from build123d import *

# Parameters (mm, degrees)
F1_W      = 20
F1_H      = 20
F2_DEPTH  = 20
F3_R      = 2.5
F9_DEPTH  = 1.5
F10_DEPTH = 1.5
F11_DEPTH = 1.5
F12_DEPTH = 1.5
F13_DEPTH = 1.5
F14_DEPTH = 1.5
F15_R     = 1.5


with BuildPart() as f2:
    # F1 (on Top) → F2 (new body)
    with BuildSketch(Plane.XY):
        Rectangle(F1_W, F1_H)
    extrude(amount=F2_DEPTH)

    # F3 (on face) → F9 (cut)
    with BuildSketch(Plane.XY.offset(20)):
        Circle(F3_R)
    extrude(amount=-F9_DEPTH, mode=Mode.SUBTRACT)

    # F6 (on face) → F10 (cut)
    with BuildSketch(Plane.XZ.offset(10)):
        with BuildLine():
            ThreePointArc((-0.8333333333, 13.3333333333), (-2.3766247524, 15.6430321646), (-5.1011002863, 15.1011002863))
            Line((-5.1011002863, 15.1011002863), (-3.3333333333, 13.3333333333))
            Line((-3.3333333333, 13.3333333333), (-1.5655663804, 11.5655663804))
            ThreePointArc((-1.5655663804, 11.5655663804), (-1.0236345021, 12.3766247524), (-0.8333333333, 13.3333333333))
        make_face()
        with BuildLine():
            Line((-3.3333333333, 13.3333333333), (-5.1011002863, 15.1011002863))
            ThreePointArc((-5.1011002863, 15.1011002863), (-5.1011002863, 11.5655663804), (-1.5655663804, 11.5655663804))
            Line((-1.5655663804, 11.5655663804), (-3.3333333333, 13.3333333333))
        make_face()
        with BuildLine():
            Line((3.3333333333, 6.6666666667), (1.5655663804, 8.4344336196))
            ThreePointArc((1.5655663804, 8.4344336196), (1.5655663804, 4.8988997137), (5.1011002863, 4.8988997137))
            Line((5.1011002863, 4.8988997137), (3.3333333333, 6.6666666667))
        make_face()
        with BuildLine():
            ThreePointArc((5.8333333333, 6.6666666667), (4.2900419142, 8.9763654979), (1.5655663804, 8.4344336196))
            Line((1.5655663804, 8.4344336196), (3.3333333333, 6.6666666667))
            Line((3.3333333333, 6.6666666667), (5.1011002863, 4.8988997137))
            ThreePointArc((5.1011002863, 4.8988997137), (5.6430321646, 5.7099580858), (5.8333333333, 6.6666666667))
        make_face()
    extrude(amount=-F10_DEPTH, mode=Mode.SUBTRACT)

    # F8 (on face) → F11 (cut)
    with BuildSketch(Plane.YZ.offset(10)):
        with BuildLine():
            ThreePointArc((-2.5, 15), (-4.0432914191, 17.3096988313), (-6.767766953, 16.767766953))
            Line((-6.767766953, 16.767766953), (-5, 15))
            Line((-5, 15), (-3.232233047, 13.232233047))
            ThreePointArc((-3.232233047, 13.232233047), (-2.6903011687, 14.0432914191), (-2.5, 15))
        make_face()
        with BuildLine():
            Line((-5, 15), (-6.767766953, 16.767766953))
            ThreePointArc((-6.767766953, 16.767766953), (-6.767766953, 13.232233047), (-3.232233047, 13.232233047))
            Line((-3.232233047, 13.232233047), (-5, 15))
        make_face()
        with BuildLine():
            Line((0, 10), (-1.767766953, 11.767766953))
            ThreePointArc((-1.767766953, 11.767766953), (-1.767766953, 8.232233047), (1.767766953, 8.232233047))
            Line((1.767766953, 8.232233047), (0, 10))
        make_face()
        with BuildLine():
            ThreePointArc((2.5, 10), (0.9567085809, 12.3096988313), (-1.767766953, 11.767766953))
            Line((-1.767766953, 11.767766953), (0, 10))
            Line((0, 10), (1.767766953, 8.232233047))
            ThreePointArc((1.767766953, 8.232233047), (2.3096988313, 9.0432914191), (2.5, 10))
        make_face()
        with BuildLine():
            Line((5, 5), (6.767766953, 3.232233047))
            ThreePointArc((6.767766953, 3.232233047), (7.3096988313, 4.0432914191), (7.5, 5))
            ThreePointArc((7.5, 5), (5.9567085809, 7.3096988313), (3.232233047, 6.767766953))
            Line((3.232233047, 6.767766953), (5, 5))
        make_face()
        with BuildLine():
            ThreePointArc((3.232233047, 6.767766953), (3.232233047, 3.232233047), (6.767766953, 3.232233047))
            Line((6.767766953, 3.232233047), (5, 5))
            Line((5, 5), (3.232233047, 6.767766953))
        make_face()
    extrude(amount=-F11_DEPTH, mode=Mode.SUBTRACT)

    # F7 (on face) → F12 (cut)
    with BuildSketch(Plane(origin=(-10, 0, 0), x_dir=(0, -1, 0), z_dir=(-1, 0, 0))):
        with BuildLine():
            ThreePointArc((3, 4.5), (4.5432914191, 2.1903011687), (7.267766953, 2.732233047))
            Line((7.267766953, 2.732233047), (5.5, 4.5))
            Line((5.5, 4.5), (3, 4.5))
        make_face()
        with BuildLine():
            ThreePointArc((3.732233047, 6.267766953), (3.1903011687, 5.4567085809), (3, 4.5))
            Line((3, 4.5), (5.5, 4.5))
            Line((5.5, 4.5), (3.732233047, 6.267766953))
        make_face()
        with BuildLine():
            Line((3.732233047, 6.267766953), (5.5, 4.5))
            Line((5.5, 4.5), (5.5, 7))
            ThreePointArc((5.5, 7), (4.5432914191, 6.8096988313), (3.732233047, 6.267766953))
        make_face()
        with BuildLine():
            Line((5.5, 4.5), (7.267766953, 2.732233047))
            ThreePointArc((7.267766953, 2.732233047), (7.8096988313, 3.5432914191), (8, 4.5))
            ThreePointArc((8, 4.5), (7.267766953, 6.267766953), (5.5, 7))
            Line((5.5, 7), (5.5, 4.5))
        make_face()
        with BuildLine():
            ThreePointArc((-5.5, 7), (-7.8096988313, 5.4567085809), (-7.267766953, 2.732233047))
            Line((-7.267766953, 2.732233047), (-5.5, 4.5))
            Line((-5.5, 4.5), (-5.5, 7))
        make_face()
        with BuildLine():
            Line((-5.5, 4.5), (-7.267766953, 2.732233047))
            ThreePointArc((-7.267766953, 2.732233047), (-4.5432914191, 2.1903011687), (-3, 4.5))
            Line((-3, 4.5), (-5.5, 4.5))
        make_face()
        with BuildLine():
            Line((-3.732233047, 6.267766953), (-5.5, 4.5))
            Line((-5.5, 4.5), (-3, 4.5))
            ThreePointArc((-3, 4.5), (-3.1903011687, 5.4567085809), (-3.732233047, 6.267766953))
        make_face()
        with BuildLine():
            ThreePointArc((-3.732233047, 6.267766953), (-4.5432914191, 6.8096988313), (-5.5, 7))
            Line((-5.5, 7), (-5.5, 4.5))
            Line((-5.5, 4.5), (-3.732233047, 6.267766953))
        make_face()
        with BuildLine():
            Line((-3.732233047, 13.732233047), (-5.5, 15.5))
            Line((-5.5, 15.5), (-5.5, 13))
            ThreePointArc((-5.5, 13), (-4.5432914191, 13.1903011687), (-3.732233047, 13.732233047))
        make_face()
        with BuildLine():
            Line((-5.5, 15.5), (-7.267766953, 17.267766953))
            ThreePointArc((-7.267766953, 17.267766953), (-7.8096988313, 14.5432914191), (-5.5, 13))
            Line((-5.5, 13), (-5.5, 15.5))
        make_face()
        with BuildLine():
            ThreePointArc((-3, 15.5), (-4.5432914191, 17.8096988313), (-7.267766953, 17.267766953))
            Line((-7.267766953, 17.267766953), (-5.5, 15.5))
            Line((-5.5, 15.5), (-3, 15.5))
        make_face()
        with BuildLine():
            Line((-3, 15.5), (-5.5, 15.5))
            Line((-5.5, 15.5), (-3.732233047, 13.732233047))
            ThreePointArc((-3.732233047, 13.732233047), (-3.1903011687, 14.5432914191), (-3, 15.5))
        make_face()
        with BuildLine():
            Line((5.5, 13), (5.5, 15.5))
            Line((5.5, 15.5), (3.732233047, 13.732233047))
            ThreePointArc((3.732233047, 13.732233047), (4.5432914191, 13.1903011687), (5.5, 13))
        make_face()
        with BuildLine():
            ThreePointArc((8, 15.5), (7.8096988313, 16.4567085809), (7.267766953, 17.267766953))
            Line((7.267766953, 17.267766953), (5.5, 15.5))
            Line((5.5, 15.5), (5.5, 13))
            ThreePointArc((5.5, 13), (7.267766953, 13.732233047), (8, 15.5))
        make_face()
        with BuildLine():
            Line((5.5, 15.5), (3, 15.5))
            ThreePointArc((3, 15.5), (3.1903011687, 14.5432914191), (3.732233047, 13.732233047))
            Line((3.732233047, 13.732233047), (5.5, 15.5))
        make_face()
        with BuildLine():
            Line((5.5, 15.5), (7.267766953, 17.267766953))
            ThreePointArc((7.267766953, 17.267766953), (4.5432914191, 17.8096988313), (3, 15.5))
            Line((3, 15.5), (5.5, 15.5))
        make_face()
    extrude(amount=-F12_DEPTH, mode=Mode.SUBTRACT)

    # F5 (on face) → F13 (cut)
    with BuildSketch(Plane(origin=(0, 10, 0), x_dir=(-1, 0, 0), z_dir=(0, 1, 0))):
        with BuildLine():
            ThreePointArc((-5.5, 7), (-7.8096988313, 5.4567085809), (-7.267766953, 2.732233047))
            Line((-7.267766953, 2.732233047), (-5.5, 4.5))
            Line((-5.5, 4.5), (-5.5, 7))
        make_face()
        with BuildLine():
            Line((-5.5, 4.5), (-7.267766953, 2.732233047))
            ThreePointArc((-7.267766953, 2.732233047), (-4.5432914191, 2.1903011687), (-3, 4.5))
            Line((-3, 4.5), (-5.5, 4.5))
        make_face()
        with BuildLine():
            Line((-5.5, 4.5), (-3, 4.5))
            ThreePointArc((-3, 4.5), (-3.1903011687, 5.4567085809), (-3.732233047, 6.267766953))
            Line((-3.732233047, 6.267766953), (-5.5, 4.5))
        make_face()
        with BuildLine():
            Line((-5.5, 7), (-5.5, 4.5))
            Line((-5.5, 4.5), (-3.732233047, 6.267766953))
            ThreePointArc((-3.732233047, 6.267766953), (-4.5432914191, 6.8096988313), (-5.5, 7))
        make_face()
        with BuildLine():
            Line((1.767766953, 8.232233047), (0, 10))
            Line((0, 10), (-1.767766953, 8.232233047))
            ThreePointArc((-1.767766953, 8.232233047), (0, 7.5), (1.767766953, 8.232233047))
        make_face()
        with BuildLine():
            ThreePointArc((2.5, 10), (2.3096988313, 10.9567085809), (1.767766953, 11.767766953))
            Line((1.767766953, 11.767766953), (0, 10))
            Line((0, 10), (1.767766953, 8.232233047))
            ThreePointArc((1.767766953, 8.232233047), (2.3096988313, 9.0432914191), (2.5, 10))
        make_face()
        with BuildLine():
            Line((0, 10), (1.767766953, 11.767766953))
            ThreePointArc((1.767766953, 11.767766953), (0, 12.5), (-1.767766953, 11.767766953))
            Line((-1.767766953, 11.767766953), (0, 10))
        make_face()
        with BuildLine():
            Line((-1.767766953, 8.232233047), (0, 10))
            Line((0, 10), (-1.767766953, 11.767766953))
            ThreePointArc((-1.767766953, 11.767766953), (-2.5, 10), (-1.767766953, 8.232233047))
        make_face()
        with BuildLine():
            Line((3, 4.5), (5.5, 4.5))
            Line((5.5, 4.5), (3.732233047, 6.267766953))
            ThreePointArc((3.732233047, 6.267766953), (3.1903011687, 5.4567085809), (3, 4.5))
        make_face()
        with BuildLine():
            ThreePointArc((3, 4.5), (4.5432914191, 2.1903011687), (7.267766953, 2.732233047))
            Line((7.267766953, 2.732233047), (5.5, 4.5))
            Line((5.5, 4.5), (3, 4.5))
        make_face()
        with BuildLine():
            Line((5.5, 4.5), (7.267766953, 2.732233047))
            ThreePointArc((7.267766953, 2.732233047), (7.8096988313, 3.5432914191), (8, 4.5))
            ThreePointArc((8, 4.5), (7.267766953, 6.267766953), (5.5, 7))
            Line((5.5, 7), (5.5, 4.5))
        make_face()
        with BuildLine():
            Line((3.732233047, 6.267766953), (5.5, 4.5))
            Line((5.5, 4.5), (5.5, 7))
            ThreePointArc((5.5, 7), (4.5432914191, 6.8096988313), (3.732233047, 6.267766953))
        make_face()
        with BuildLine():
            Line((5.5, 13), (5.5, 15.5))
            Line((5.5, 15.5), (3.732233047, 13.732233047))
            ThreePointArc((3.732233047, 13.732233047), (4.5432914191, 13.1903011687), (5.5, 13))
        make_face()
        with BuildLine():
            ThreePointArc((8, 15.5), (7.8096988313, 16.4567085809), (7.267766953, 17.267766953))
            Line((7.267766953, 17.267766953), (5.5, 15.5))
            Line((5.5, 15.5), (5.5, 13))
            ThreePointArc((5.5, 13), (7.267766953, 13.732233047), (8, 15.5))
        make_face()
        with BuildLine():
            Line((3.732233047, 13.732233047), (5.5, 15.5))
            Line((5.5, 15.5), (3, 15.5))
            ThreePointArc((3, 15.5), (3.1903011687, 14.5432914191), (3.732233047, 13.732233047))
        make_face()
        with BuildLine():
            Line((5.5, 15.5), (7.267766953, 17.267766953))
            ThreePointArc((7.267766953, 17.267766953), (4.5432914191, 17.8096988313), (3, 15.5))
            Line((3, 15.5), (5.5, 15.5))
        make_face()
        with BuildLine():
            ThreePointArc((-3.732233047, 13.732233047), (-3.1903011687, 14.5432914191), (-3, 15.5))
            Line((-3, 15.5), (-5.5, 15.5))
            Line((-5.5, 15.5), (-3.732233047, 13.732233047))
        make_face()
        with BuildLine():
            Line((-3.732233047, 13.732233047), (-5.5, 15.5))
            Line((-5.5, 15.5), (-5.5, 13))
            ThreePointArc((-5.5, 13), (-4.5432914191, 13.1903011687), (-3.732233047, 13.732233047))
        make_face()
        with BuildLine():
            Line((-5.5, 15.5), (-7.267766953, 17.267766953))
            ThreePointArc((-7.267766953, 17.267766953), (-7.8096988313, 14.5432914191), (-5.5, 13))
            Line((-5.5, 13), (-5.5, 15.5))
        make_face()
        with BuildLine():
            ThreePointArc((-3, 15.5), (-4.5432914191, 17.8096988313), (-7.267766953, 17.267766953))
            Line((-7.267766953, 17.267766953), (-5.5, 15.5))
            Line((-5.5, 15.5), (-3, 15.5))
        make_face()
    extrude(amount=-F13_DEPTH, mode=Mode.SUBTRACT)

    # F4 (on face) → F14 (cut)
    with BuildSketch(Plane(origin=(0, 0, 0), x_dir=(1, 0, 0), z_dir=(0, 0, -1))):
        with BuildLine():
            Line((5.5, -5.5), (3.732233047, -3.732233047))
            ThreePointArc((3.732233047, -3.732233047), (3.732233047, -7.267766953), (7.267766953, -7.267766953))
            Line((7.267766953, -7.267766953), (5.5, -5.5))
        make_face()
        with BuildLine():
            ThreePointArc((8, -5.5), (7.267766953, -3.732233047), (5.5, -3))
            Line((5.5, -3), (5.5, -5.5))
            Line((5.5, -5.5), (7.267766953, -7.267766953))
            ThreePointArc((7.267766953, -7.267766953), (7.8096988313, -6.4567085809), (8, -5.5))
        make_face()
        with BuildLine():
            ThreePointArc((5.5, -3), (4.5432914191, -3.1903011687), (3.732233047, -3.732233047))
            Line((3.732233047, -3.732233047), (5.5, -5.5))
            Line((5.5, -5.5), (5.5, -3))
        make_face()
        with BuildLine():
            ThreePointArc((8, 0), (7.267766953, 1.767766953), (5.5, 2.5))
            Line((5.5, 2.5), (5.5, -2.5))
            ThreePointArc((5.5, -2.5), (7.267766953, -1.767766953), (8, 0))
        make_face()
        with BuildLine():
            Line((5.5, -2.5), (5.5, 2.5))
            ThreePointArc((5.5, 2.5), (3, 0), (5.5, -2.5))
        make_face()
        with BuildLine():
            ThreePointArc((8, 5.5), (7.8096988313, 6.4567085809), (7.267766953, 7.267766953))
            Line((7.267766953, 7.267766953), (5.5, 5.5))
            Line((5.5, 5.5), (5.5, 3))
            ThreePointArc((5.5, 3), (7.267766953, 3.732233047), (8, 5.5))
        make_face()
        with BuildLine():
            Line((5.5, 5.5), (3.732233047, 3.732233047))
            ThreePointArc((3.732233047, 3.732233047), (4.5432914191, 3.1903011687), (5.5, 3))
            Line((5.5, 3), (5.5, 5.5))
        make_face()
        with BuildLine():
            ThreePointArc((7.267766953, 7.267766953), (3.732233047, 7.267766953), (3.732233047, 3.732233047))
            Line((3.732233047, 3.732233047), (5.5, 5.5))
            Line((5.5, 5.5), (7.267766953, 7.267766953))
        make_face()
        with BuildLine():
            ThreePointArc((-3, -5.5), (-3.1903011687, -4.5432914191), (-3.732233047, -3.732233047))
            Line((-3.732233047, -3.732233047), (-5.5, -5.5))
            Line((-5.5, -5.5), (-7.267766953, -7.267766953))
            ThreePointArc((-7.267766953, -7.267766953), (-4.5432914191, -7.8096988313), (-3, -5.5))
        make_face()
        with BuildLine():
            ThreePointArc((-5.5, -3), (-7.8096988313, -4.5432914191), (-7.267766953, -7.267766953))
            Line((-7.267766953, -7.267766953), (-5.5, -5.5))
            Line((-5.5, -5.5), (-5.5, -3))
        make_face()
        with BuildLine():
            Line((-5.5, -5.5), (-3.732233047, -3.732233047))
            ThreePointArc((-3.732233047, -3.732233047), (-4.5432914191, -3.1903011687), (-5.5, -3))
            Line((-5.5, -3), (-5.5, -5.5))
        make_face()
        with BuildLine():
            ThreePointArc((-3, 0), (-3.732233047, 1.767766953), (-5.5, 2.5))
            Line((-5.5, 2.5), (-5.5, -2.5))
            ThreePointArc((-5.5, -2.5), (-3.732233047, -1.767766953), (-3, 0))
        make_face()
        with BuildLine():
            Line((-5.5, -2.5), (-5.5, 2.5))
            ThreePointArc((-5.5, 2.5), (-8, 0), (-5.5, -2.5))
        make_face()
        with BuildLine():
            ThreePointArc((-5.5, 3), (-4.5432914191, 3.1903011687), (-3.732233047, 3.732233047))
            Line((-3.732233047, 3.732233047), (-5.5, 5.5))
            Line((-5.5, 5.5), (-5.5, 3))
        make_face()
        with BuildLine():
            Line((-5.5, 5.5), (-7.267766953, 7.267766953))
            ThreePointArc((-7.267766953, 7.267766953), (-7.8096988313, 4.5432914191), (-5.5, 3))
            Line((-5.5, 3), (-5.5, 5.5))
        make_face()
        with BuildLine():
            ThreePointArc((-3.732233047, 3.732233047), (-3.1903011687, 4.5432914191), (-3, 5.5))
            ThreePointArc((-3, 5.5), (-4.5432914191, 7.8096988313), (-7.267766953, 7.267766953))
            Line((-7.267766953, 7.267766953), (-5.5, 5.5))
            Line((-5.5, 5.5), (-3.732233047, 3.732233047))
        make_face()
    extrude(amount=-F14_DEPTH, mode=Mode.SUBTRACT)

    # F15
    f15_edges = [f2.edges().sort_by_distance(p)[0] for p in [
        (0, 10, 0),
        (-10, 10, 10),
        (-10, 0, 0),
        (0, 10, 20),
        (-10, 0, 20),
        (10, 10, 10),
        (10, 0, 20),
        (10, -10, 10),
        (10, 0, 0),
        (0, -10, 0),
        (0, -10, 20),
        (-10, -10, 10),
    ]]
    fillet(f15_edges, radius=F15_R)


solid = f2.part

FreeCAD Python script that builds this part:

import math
import FreeCAD as App
import Part
import Sketcher
Q = App.Units.Quantity


def edges_at(feature, points):
    """Names of the edges that pass closest to the given points."""
    edges = feature.Shape.Edges
    near = lambda p: min(range(len(edges)), key=lambda i: edges[i].distToShape(Part.Vertex(*p))[0])
    return sorted({f"Edge{near(p) + 1}" for p in points})


def add_polygon(sketch, points):
    """Adds a closed chain of lines whose ends are joined by coincident constraints."""
    first, n = sketch.GeometryCount, len(points)
    for a, b in zip(points, points[1:] + points[:1]):
        sketch.addGeometry(Part.LineSegment(App.Vector(*a, 0), App.Vector(*b, 0)), False)
    for i in range(n):
        sketch.addConstraint(Sketcher.Constraint("Coincident", first + i, 2, first + (i + 1) % n, 1))

doc = App.newDocument("Part")
body = doc.addObject("PartDesign::Body", "Body")

sketch1 = body.newObject("Sketcher::SketchObject", "Sketch")
sketch1.AttachmentSupport = (doc.getObject("XY_Plane"), [""])
sketch1.MapMode = "FlatFace"
add_polygon(sketch1, [(-10, 10), (-10, -10), (10, -10), (10, 10)])
sketch1.addConstraint([
    Sketcher.Constraint("Vertical", 0),
    Sketcher.Constraint("Horizontal", 1),
    Sketcher.Constraint("Vertical", 2),
    Sketcher.Constraint("Horizontal", 3),
    Sketcher.Constraint("Symmetric", 0, 2, 2, 2, -1, 1),
    Sketcher.Constraint("Equal", 3, 0),
    Sketcher.Constraint("DistanceX", 1, 1, 1, 2, Q("20 mm")),
])
pad1 = body.newObject("PartDesign::Pad", "Pad")
pad1.Profile = sketch1
pad1.Length = 20

sketch2 = body.newObject("Sketcher::SketchObject", "Sketch001")
sketch2.AttachmentSupport = (doc.getObject("XY_Plane"), [""])
sketch2.MapMode = "FlatFace"
sketch2.AttachmentOffset = App.Placement(App.Vector(0, 0, 20), App.Rotation())
sketch2.addGeometry(Part.Circle(App.Vector(0, 0, 0), App.Vector(0, 0, 1), 2.5), False)
sketch2.addConstraint([
    Sketcher.Constraint("Coincident", 0, 3, -1, 1),
    Sketcher.Constraint("Diameter", 0, Q("5 mm")),
])
pocket1 = body.newObject("PartDesign::Pocket", "Pocket")
pocket1.Profile = sketch2
pocket1.Length = 1.5

sketch3 = body.newObject("Sketcher::SketchObject", "Sketch002")
sketch3.AttachmentSupport = (doc.getObject("XZ_Plane"), [""])
sketch3.MapMode = "FlatFace"
sketch3.AttachmentOffset = App.Placement(App.Vector(0, 0, 10), App.Rotation())
sketch3.addGeometry([
    Part.ArcOfCircle(Part.Circle(App.Vector(-3.333333, 13.333333, 0), App.Vector(0, 0, 1), 2.5), math.radians(0), math.radians(135)),
    Part.ArcOfCircle(Part.Circle(App.Vector(-3.333333, 13.333333, 0), App.Vector(0, 0, 1), 2.5), math.radians(135), math.radians(315)),
    Part.ArcOfCircle(Part.Circle(App.Vector(-3.333333, 13.333333, 0), App.Vector(0, 0, 1), 2.5), math.radians(-45), math.radians(0)),
    Part.ArcOfCircle(Part.Circle(App.Vector(3.333333, 6.666667, 0), App.Vector(0, 0, 1), 2.5), math.radians(135), math.radians(315)),
    Part.ArcOfCircle(Part.Circle(App.Vector(3.333333, 6.666667, 0), App.Vector(0, 0, 1), 2.5), math.radians(-45), math.radians(0)),
    Part.ArcOfCircle(Part.Circle(App.Vector(3.333333, 6.666667, 0), App.Vector(0, 0, 1), 2.5), math.radians(0), math.radians(135)),
], False)
sketch3.addConstraint([
    Sketcher.Constraint("Tangent", 0, 2, 1, 1),
    Sketcher.Constraint("Tangent", 1, 2, 2, 1),
    Sketcher.Constraint("Tangent", 2, 2, 0, 1),
    Sketcher.Constraint("Tangent", 3, 2, 4, 1),
    Sketcher.Constraint("Tangent", 4, 2, 5, 1),
    Sketcher.Constraint("Tangent", 5, 2, 3, 1),
    Sketcher.Constraint("Equal", 2, 3),
    Sketcher.Constraint("Horizontal", 1, 3, 2, 2),
    Sketcher.Constraint("Horizontal", 5, 3, 4, 2),
    Sketcher.Constraint("Radius", 0, Q("2.5 mm")),
    Sketcher.Constraint("DistanceX", 0, 2, -1, 1, Q("5.1011 mm")),
    Sketcher.Constraint("DistanceY", -1, 1, 0, 2, Q("15.1011 mm")),
    Sketcher.Constraint("DistanceX", -1, 1, 3, 2, Q("5.1011 mm")),
    Sketcher.Constraint("DistanceY", -1, 1, 3, 2, Q("4.8989 mm")),
    Sketcher.Constraint("DistanceX", 1, 2, 3, 3, Q("4.8989 mm")),
    Sketcher.Constraint("DistanceX", 0, 3, -1, 1, Q("3.333333 mm")),
    Sketcher.Constraint("DistanceX", -1, 1, 3, 3, Q("3.333333 mm")),
    Sketcher.Constraint("DistanceX", -1, 1, 5, 2, Q("1.565566 mm")),
])
pocket2 = body.newObject("PartDesign::Pocket", "Pocket001")
pocket2.Profile = sketch3
pocket2.Length = 1.5

sketch4 = body.newObject("Sketcher::SketchObject", "Sketch003")
sketch4.AttachmentSupport = (doc.getObject("YZ_Plane"), [""])
sketch4.MapMode = "FlatFace"
sketch4.AttachmentOffset = App.Placement(App.Vector(0, 0, 10), App.Rotation())
sketch4.addGeometry([
    Part.ArcOfCircle(Part.Circle(App.Vector(-5, 15, 0), App.Vector(0, 0, 1), 2.5), math.radians(0), math.radians(135)),
    Part.ArcOfCircle(Part.Circle(App.Vector(-5, 15, 0), App.Vector(0, 0, 1), 2.5), math.radians(135), math.radians(315)),
    Part.ArcOfCircle(Part.Circle(App.Vector(-5, 15, 0), App.Vector(0, 0, 1), 2.5), math.radians(-45), math.radians(0)),
    Part.ArcOfCircle(Part.Circle(App.Vector(0, 10, 0), App.Vector(0, 0, 1), 2.5), math.radians(135), math.radians(315)),
    Part.ArcOfCircle(Part.Circle(App.Vector(0, 10, 0), App.Vector(0, 0, 1), 2.5), math.radians(-45), math.radians(0)),
    Part.ArcOfCircle(Part.Circle(App.Vector(0, 10, 0), App.Vector(0, 0, 1), 2.5), math.radians(0), math.radians(135)),
    Part.ArcOfCircle(Part.Circle(App.Vector(5, 5, 0), App.Vector(0, 0, 1), 2.5), math.radians(-45), math.radians(0)),
    Part.ArcOfCircle(Part.Circle(App.Vector(5, 5, 0), App.Vector(0, 0, 1), 2.5), math.radians(0), math.radians(135)),
    Part.ArcOfCircle(Part.Circle(App.Vector(5, 5, 0), App.Vector(0, 0, 1), 2.5), math.radians(135), math.radians(315)),
], False)
sketch4.addConstraint([
    Sketcher.Constraint("Tangent", 0, 2, 1, 1),
    Sketcher.Constraint("Tangent", 1, 2, 2, 1),
    Sketcher.Constraint("Tangent", 2, 2, 0, 1),
    Sketcher.Constraint("Tangent", 3, 2, 4, 1),
    Sketcher.Constraint("Tangent", 4, 2, 5, 1),
    Sketcher.Constraint("Tangent", 5, 2, 3, 1),
    Sketcher.Constraint("Tangent", 6, 2, 7, 1),
    Sketcher.Constraint("Tangent", 7, 2, 8, 1),
    Sketcher.Constraint("Tangent", 8, 2, 6, 1),
    Sketcher.Constraint("Equal", 2, 3),
    Sketcher.Constraint("Equal", 5, 6),
    Sketcher.Constraint("PointOnObject", 3, 3, -2),
    Sketcher.Constraint("Horizontal", 1, 3, 2, 2),
    Sketcher.Constraint("Horizontal", 5, 3, 4, 2),
    Sketcher.Constraint("Horizontal", 8, 3, 6, 2),
    Sketcher.Constraint("Radius", 0, Q("2.5 mm")),
    Sketcher.Constraint("DistanceX", 0, 3, -1, 1, Q("5 mm")),
    Sketcher.Constraint("DistanceY", -1, 1, 0, 3, Q("15 mm")),
    Sketcher.Constraint("DistanceY", -1, 1, 3, 3, Q("10 mm")),
    Sketcher.Constraint("DistanceX", -1, 1, 6, 3, Q("5 mm")),
    Sketcher.Constraint("DistanceY", -1, 1, 6, 3, Q("5 mm")),
    Sketcher.Constraint("DistanceX", 0, 2, -1, 1, Q("6.767767 mm")),
    Sketcher.Constraint("DistanceX", 1, 2, -1, 1, Q("3.232233 mm")),
    Sketcher.Constraint("DistanceX", -1, 1, 3, 2, Q("1.767767 mm")),
    Sketcher.Constraint("DistanceX", 5, 2, -1, 1, Q("1.767767 mm")),
    Sketcher.Constraint("DistanceX", -1, 1, 7, 2, Q("3.232233 mm")),
    Sketcher.Constraint("DistanceX", -1, 1, 8, 2, Q("6.767767 mm")),
])
pocket3 = body.newObject("PartDesign::Pocket", "Pocket002")
pocket3.Profile = sketch4
pocket3.Length = 1.5

sketch5 = body.newObject("Sketcher::SketchObject", "Sketch004")
sketch5.AttachmentSupport = (doc.getObject("YZ_Plane"), [""])
sketch5.MapMode = "FlatFace"
sketch5.AttachmentOffset = App.Placement(App.Vector(0, 0, -10), App.Rotation())
sketch5.addGeometry([
    Part.ArcOfCircle(Part.Circle(App.Vector(-5.5, 4.5, 0), App.Vector(0, 0, 1), 2.5), math.radians(-135), math.radians(0)),
    Part.ArcOfCircle(Part.Circle(App.Vector(-5.5, 4.5, 0), App.Vector(0, 0, 1), 2.5), math.radians(180), math.radians(225)),
    Part.ArcOfCircle(Part.Circle(App.Vector(-5.5, 4.5, 0), App.Vector(0, 0, 1), 2.5), math.radians(90), math.radians(180)),
    Part.ArcOfCircle(Part.Circle(App.Vector(-5.5, 4.5, 0), App.Vector(0, 0, 1), 2.5), math.radians(45), math.radians(90)),
    Part.ArcOfCircle(Part.Circle(App.Vector(-5.5, 4.5, 0), App.Vector(0, 0, 1), 2.5), math.radians(0), math.radians(45)),
    Part.ArcOfCircle(Part.Circle(App.Vector(5.5, 4.5, 0), App.Vector(0, 0, 1), 2.5), math.radians(-45), math.radians(90)),
    Part.ArcOfCircle(Part.Circle(App.Vector(5.5, 4.5, 0), App.Vector(0, 0, 1), 2.5), math.radians(180), math.radians(315)),
    Part.ArcOfCircle(Part.Circle(App.Vector(5.5, 4.5, 0), App.Vector(0, 0, 1), 2.5), math.radians(135), math.radians(180)),
    Part.ArcOfCircle(Part.Circle(App.Vector(5.5, 4.5, 0), App.Vector(0, 0, 1), 2.5), math.radians(90), math.radians(135)),
    Part.ArcOfCircle(Part.Circle(App.Vector(5.5, 15.5, 0), App.Vector(0, 0, 1), 2.5), math.radians(45), math.radians(180)),
    Part.ArcOfCircle(Part.Circle(App.Vector(5.5, 15.5, 0), App.Vector(0, 0, 1), 2.5), math.radians(-90), math.radians(45)),
    Part.ArcOfCircle(Part.Circle(App.Vector(5.5, 15.5, 0), App.Vector(0, 0, 1), 2.5), math.radians(-135), math.radians(-90)),
    Part.ArcOfCircle(Part.Circle(App.Vector(5.5, 15.5, 0), App.Vector(0, 0, 1), 2.5), math.radians(180), math.radians(225)),
    Part.ArcOfCircle(Part.Circle(App.Vector(-5.5, 15.5, 0), App.Vector(0, 0, 1), 2.5), math.radians(-90), math.radians(-45)),
    Part.ArcOfCircle(Part.Circle(App.Vector(-5.5, 15.5, 0), App.Vector(0, 0, 1), 2.5), math.radians(180), math.radians(270)),
    Part.ArcOfCircle(Part.Circle(App.Vector(-5.5, 15.5, 0), App.Vector(0, 0, 1), 2.5), math.radians(135), math.radians(180)),
    Part.ArcOfCircle(Part.Circle(App.Vector(-5.5, 15.5, 0), App.Vector(0, 0, 1), 2.5), math.radians(0), math.radians(135)),
    Part.ArcOfCircle(Part.Circle(App.Vector(-5.5, 15.5, 0), App.Vector(0, 0, 1), 2.5), math.radians(-45), math.radians(0)),
], False)
sketch5.addConstraint([
    Sketcher.Constraint("Tangent", 0, 1, 1, 2),
    Sketcher.Constraint("Tangent", 1, 1, 2, 2),
    Sketcher.Constraint("Tangent", 2, 1, 3, 2),
    Sketcher.Constraint("Tangent", 3, 1, 4, 2),
    Sketcher.Constraint("Tangent", 4, 1, 0, 2),
    Sketcher.Constraint("Tangent", 5, 1, 6, 2),
    Sketcher.Constraint("Tangent", 6, 1, 7, 2),
    Sketcher.Constraint("Tangent", 7, 1, 8, 2),
    Sketcher.Constraint("Tangent", 8, 1, 5, 2),
    Sketcher.Constraint("Tangent", 9, 1, 10, 2),
    Sketcher.Constraint("Tangent", 10, 1, 11, 2),
    Sketcher.Constraint("Tangent", 11, 1, 12, 2),
    Sketcher.Constraint("Tangent", 12, 1, 9, 2),
    Sketcher.Constraint("Tangent", 13, 1, 14, 2),
    Sketcher.Constraint("Tangent", 14, 1, 15, 2),
    Sketcher.Constraint("Tangent", 15, 1, 16, 2),
    Sketcher.Constraint("Tangent", 16, 1, 17, 2),
    Sketcher.Constraint("Tangent", 17, 1, 13, 2),
    Sketcher.Constraint("Coincident", 2, 3, 0, 3),
    Sketcher.Constraint("Coincident", 15, 3, 13, 3),
    Sketcher.Constraint("Equal", 4, 5),
    Sketcher.Constraint("Equal", 5, 6),
    Sketcher.Constraint("Equal", 8, 9),
    Sketcher.Constraint("Equal", 9, 10),
    Sketcher.Constraint("Equal", 12, 13),
    Sketcher.Constraint("Symmetric", 0, 3, 5, 3, -2),
    Sketcher.Constraint("Symmetric", 9, 3, 13, 3, -2),
    Sketcher.Constraint("Horizontal", 8, 3, 1, 1),
    Sketcher.Constraint("Horizontal", 1, 1, 4, 1),
    Sketcher.Constraint("Horizontal", 0, 1, 5, 1),
    Sketcher.Constraint("Horizontal", 4, 1, 6, 1),
    Sketcher.Constraint("Horizontal", 3, 1, 7, 1),
    Sketcher.Constraint("Horizontal", 17, 3, 12, 1),
    Sketcher.Constraint("Horizontal", 12, 1, 14, 1),
    Sketcher.Constraint("Horizontal", 9, 1, 15, 1),
    Sketcher.Constraint("Horizontal", 14, 1, 16, 1),
    Sketcher.Constraint("Horizontal", 11, 1, 17, 1),
    Sketcher.Constraint("Vertical", 8, 3, 9, 3),
    Sketcher.Constraint("Vertical", 17, 3, 2, 1),
    Sketcher.Constraint("Vertical", 12, 3, 8, 1),
    Sketcher.Constraint("Vertical", 5, 1, 9, 1),
    Sketcher.Constraint("Vertical", 8, 1, 10, 1),
    Sketcher.Constraint("Vertical", 7, 1, 11, 1),
    Sketcher.Constraint("Vertical", 2, 1, 13, 1),
    Sketcher.Constraint("Radius", 0, Q("2.5 mm")),
    Sketcher.Constraint("DistanceX", 1, 1, -1, 1, Q("8 mm")),
    Sketcher.Constraint("DistanceY", -1, 1, 2, 1, Q("7 mm")),
    Sketcher.Constraint("DistanceY", -1, 1, 10, 1, Q("13 mm")),
    Sketcher.Constraint("DistanceX", 0, 1, -1, 1, Q("7.267767 mm")),
    Sketcher.Constraint("DistanceX", 3, 1, -1, 1, Q("3.732233 mm")),
])
pocket4 = body.newObject("PartDesign::Pocket", "Pocket003")
pocket4.Profile = sketch5
pocket4.Length = 1.5
pocket4.Reversed = True

sketch6 = body.newObject("Sketcher::SketchObject", "Sketch005")
sketch6.AttachmentSupport = (doc.getObject("XZ_Plane"), [""])
sketch6.MapMode = "FlatFace"
sketch6.AttachmentOffset = App.Placement(App.Vector(0, 0, -10), App.Rotation())
sketch6.addGeometry([
    Part.ArcOfCircle(Part.Circle(App.Vector(5.5, 4.5, 0), App.Vector(0, 0, 1), 2.5), math.radians(-45), math.radians(90)),
    Part.ArcOfCircle(Part.Circle(App.Vector(5.5, 4.5, 0), App.Vector(0, 0, 1), 2.5), math.radians(180), math.radians(315)),
    Part.ArcOfCircle(Part.Circle(App.Vector(5.5, 4.5, 0), App.Vector(0, 0, 1), 2.5), math.radians(135), math.radians(180)),
    Part.ArcOfCircle(Part.Circle(App.Vector(5.5, 4.5, 0), App.Vector(0, 0, 1), 2.5), math.radians(90), math.radians(135)),
    Part.ArcOfCircle(Part.Circle(App.Vector(0, 10, 0), App.Vector(0, 0, 1), 2.5), math.radians(-135), math.radians(-45)),
    Part.ArcOfCircle(Part.Circle(App.Vector(0, 10, 0), App.Vector(0, 0, 1), 2.5), math.radians(180), math.radians(225)),
    Part.ArcOfCircle(Part.Circle(App.Vector(0, 10, 0), App.Vector(0, 0, 1), 2.5), math.radians(135), math.radians(180)),
    Part.ArcOfCircle(Part.Circle(App.Vector(0, 10, 0), App.Vector(0, 0, 1), 2.5), math.radians(45), math.radians(135)),
    Part.ArcOfCircle(Part.Circle(App.Vector(0, 10, 0), App.Vector(0, 0, 1), 2.5), math.radians(-45), math.radians(45)),
    Part.ArcOfCircle(Part.Circle(App.Vector(-5.5, 4.5, 0), App.Vector(0, 0, 1), 2.5), math.radians(0), math.radians(45)),
    Part.ArcOfCircle(Part.Circle(App.Vector(-5.5, 4.5, 0), App.Vector(0, 0, 1), 2.5), math.radians(-135), math.radians(0)),
    Part.ArcOfCircle(Part.Circle(App.Vector(-5.5, 4.5, 0), App.Vector(0, 0, 1), 2.5), math.radians(180), math.radians(225)),
    Part.ArcOfCircle(Part.Circle(App.Vector(-5.5, 4.5, 0), App.Vector(0, 0, 1), 2.5), math.radians(90), math.radians(180)),
    Part.ArcOfCircle(Part.Circle(App.Vector(-5.5, 4.5, 0), App.Vector(0, 0, 1), 2.5), math.radians(45), math.radians(90)),
    Part.ArcOfCircle(Part.Circle(App.Vector(-5.5, 15.5, 0), App.Vector(0, 0, 1), 2.5), math.radians(-90), math.radians(-45)),
    Part.ArcOfCircle(Part.Circle(App.Vector(-5.5, 15.5, 0), App.Vector(0, 0, 1), 2.5), math.radians(180), math.radians(270)),
    Part.ArcOfCircle(Part.Circle(App.Vector(-5.5, 15.5, 0), App.Vector(0, 0, 1), 2.5), math.radians(135), math.radians(180)),
    Part.ArcOfCircle(Part.Circle(App.Vector(-5.5, 15.5, 0), App.Vector(0, 0, 1), 2.5), math.radians(0), math.radians(135)),
    Part.ArcOfCircle(Part.Circle(App.Vector(-5.5, 15.5, 0), App.Vector(0, 0, 1), 2.5), math.radians(-45), math.radians(0)),
    Part.ArcOfCircle(Part.Circle(App.Vector(5.5, 15.5, 0), App.Vector(0, 0, 1), 2.5), math.radians(180), math.radians(225)),
    Part.ArcOfCircle(Part.Circle(App.Vector(5.5, 15.5, 0), App.Vector(0, 0, 1), 2.5), math.radians(45), math.radians(180)),
    Part.ArcOfCircle(Part.Circle(App.Vector(5.5, 15.5, 0), App.Vector(0, 0, 1), 2.5), math.radians(-90), math.radians(45)),
    Part.ArcOfCircle(Part.Circle(App.Vector(5.5, 15.5, 0), App.Vector(0, 0, 1), 2.5), math.radians(-135), math.radians(-90)),
], False)
sketch6.addConstraint([
    Sketcher.Constraint("Tangent", 0, 1, 1, 2),
    Sketcher.Constraint("Tangent", 1, 1, 2, 2),
    Sketcher.Constraint("Tangent", 2, 1, 3, 2),
    Sketcher.Constraint("Tangent", 3, 1, 0, 2),
    Sketcher.Constraint("Tangent", 4, 1, 5, 2),
    Sketcher.Constraint("Tangent", 5, 1, 6, 2),
    Sketcher.Constraint("Tangent", 6, 1, 7, 2),
    Sketcher.Constraint("Tangent", 7, 1, 8, 2),
    Sketcher.Constraint("Tangent", 8, 1, 4, 2),
    Sketcher.Constraint("Tangent", 9, 1, 10, 2),
    Sketcher.Constraint("Tangent", 10, 1, 11, 2),
    Sketcher.Constraint("Tangent", 11, 1, 12, 2),
    Sketcher.Constraint("Tangent", 12, 1, 13, 2),
    Sketcher.Constraint("Tangent", 13, 1, 9, 2),
    Sketcher.Constraint("Tangent", 14, 1, 15, 2),
    Sketcher.Constraint("Tangent", 15, 1, 16, 2),
    Sketcher.Constraint("Tangent", 16, 1, 17, 2),
    Sketcher.Constraint("Tangent", 17, 1, 18, 2),
    Sketcher.Constraint("Tangent", 18, 1, 14, 2),
    Sketcher.Constraint("Tangent", 19, 1, 20, 2),
    Sketcher.Constraint("Tangent", 20, 1, 21, 2),
    Sketcher.Constraint("Tangent", 21, 1, 22, 2),
    Sketcher.Constraint("Tangent", 22, 1, 19, 2),
    Sketcher.Constraint("Coincident", 6, 3, 4, 3),
    Sketcher.Constraint("Coincident", 11, 3, 9, 3),
    Sketcher.Constraint("Coincident", 16, 3, 14, 3),
    Sketcher.Constraint("Equal", 0, 1),
    Sketcher.Constraint("Equal", 3, 4),
    Sketcher.Constraint("Equal", 8, 9),
    Sketcher.Constraint("Equal", 13, 14),
    Sketcher.Constraint("Equal", 18, 19),
    Sketcher.Constraint("Equal", 19, 20),
    Sketcher.Constraint("Symmetric", 0, 3, 9, 3, -2),
    Sketcher.Constraint("Symmetric", 14, 3, 19, 3, -2),
    Sketcher.Constraint("Symmetric", 6, 1, 7, 1, -2),
    Sketcher.Constraint("Horizontal", 13, 3, 1, 1),
    Sketcher.Constraint("Horizontal", 8, 3, 5, 1),
    Sketcher.Constraint("Horizontal", 4, 1, 8, 1),
    Sketcher.Constraint("Horizontal", 1, 1, 9, 1),
    Sketcher.Constraint("Horizontal", 0, 1, 10, 1),
    Sketcher.Constraint("Horizontal", 9, 1, 11, 1),
    Sketcher.Constraint("Horizontal", 2, 1, 13, 1),
    Sketcher.Constraint("Horizontal", 22, 3, 15, 1),
    Sketcher.Constraint("Horizontal", 15, 1, 17, 1),
    Sketcher.Constraint("Horizontal", 17, 1, 19, 1),
    Sketcher.Constraint("Horizontal", 16, 1, 20, 1),
    Sketcher.Constraint("Horizontal", 18, 1, 22, 1),
    Sketcher.Constraint("Vertical", 13, 3, 14, 3),
    Sketcher.Constraint("Vertical", 22, 3, 3, 1),
    Sketcher.Constraint("Vertical", 4, 1, 6, 1),
    Sketcher.Constraint("Vertical", 18, 3, 12, 1),
    Sketcher.Constraint("Vertical", 12, 1, 14, 1),
    Sketcher.Constraint("Vertical", 10, 1, 16, 1),
    Sketcher.Constraint("Vertical", 13, 1, 18, 1),
    Sketcher.Constraint("Vertical", 3, 1, 21, 1),
    Sketcher.Constraint("Radius", 0, Q("2.5 mm")),
    Sketcher.Constraint("DistanceY", -1, 1, 4, 3, Q("10 mm")),
    Sketcher.Constraint("DistanceX", -1, 1, 1, 1, Q("3 mm")),
    Sketcher.Constraint("DistanceY", -1, 1, 3, 1, Q("7 mm")),
    Sketcher.Constraint("DistanceY", -1, 1, 14, 1, Q("13 mm")),
    Sketcher.Constraint("DistanceX", -1, 1, 0, 1, Q("7.267767 mm")),
    Sketcher.Constraint("DistanceX", -1, 1, 2, 1, Q("3.732233 mm")),
    Sketcher.Constraint("DistanceX", 4, 1, -1, 1, Q("1.767767 mm")),
])
pocket5 = body.newObject("PartDesign::Pocket", "Pocket004")
pocket5.Profile = sketch6
pocket5.Length = 1.5
pocket5.Reversed = True

sketch7 = body.newObject("Sketcher::SketchObject", "Sketch006")
sketch7.AttachmentSupport = (doc.getObject("XY_Plane"), [""])
sketch7.MapMode = "FlatFace"
sketch7.addGeometry([
    Part.ArcOfCircle(Part.Circle(App.Vector(5.5, 5.5, 0), App.Vector(0, 0, 1), 2.5), math.radians(45), math.radians(225)),
    Part.ArcOfCircle(Part.Circle(App.Vector(5.5, 5.5, 0), App.Vector(0, 0, 1), 2.5), math.radians(0), math.radians(45)),
    Part.ArcOfCircle(Part.Circle(App.Vector(5.5, 5.5, 0), App.Vector(0, 0, 1), 2.5), math.radians(-90), math.radians(0)),
    Part.ArcOfCircle(Part.Circle(App.Vector(5.5, 5.5, 0), App.Vector(0, 0, 1), 2.5), math.radians(-135), math.radians(-90)),
    Part.ArcOfCircle(Part.Circle(App.Vector(5.5, 0, 0), App.Vector(0, 0, 1), 2.5), math.radians(-90), math.radians(0)),
    Part.ArcOfCircle(Part.Circle(App.Vector(5.5, 0, 0), App.Vector(0, 0, 1), 2.5), math.radians(90), math.radians(270)),
    Part.ArcOfCircle(Part.Circle(App.Vector(5.5, 0, 0), App.Vector(0, 0, 1), 2.5), math.radians(0), math.radians(90)),
    Part.ArcOfCircle(Part.Circle(App.Vector(5.5, -5.5, 0), App.Vector(0, 0, 1), 2.5), math.radians(-45), math.radians(0)),
    Part.ArcOfCircle(Part.Circle(App.Vector(5.5, -5.5, 0), App.Vector(0, 0, 1), 2.5), math.radians(135), math.radians(315)),
    Part.ArcOfCircle(Part.Circle(App.Vector(5.5, -5.5, 0), App.Vector(0, 0, 1), 2.5), math.radians(90), math.radians(135)),
    Part.ArcOfCircle(Part.Circle(App.Vector(5.5, -5.5, 0), App.Vector(0, 0, 1), 2.5), math.radians(0), math.radians(90)),
    Part.ArcOfCircle(Part.Circle(App.Vector(-5.5, 5.5, 0), App.Vector(0, 0, 1), 2.5), math.radians(-45), math.radians(0)),
    Part.ArcOfCircle(Part.Circle(App.Vector(-5.5, 5.5, 0), App.Vector(0, 0, 1), 2.5), math.radians(-90), math.radians(-45)),
    Part.ArcOfCircle(Part.Circle(App.Vector(-5.5, 5.5, 0), App.Vector(0, 0, 1), 2.5), math.radians(135), math.radians(270)),
    Part.ArcOfCircle(Part.Circle(App.Vector(-5.5, 5.5, 0), App.Vector(0, 0, 1), 2.5), math.radians(0), math.radians(135)),
    Part.ArcOfCircle(Part.Circle(App.Vector(-5.5, 0, 0), App.Vector(0, 0, 1), 2.5), math.radians(-90), math.radians(0)),
    Part.ArcOfCircle(Part.Circle(App.Vector(-5.5, 0, 0), App.Vector(0, 0, 1), 2.5), math.radians(90), math.radians(270)),
    Part.ArcOfCircle(Part.Circle(App.Vector(-5.5, 0, 0), App.Vector(0, 0, 1), 2.5), math.radians(0), math.radians(90)),
    Part.ArcOfCircle(Part.Circle(App.Vector(-5.5, -5.5, 0), App.Vector(0, 0, 1), 2.5), math.radians(45), math.radians(90)),
    Part.ArcOfCircle(Part.Circle(App.Vector(-5.5, -5.5, 0), App.Vector(0, 0, 1), 2.5), math.radians(0), math.radians(45)),
    Part.ArcOfCircle(Part.Circle(App.Vector(-5.5, -5.5, 0), App.Vector(0, 0, 1), 2.5), math.radians(-135), math.radians(0)),
    Part.ArcOfCircle(Part.Circle(App.Vector(-5.5, -5.5, 0), App.Vector(0, 0, 1), 2.5), math.radians(90), math.radians(225)),
], False)
sketch7.addConstraint([
    Sketcher.Constraint("Tangent", 0, 1, 1, 2),
    Sketcher.Constraint("Tangent", 1, 1, 2, 2),
    Sketcher.Constraint("Tangent", 2, 1, 3, 2),
    Sketcher.Constraint("Tangent", 3, 1, 0, 2),
    Sketcher.Constraint("Tangent", 4, 1, 5, 2),
    Sketcher.Constraint("Tangent", 5, 1, 6, 2),
    Sketcher.Constraint("Tangent", 6, 1, 4, 2),
    Sketcher.Constraint("Tangent", 7, 1, 8, 2),
    Sketcher.Constraint("Tangent", 8, 1, 9, 2),
    Sketcher.Constraint("Tangent", 9, 1, 10, 2),
    Sketcher.Constraint("Tangent", 10, 1, 7, 2),
    Sketcher.Constraint("Tangent", 11, 1, 12, 2),
    Sketcher.Constraint("Tangent", 12, 1, 13, 2),
    Sketcher.Constraint("Tangent", 13, 1, 14, 2),
    Sketcher.Constraint("Tangent", 14, 1, 11, 2),
    Sketcher.Constraint("Tangent", 15, 1, 16, 2),
    Sketcher.Constraint("Tangent", 16, 1, 17, 2),
    Sketcher.Constraint("Tangent", 17, 1, 15, 2),
    Sketcher.Constraint("Tangent", 18, 1, 19, 2),
    Sketcher.Constraint("Tangent", 19, 1, 20, 2),
    Sketcher.Constraint("Tangent", 20, 1, 21, 2),
    Sketcher.Constraint("Tangent", 21, 1, 18, 2),
    Sketcher.Constraint("Equal", 0, 1),
    Sketcher.Constraint("Equal", 3, 4),
    Sketcher.Constraint("Equal", 6, 7),
    Sketcher.Constraint("Equal", 7, 8),
    Sketcher.Constraint("Equal", 10, 11),
    Sketcher.Constraint("Equal", 11, 12),
    Sketcher.Constraint("Equal", 14, 15),
    Sketcher.Constraint("Equal", 17, 18),
    Sketcher.Constraint("Equal", 18, 19),
    Sketcher.Constraint("Symmetric", 7, 3, 11, 3, -1, 1),
    Sketcher.Constraint("Symmetric", 4, 3, 15, 3, -1, 1),
    Sketcher.Constraint("Symmetric", 0, 3, 18, 3, -1, 1),
    Sketcher.Constraint("Symmetric", 0, 3, 11, 3, -2),
    Sketcher.Constraint("Symmetric", 4, 1, 15, 1, -2),
    Sketcher.Constraint("PointOnObject", 6, 1, -1),
    Sketcher.Constraint("PointOnObject", 17, 1, -1),
    Sketcher.Constraint("Horizontal", 14, 3, 1, 1),
    Sketcher.Constraint("Horizontal", 21, 3, 10, 1),
    Sketcher.Constraint("Horizontal", 3, 1, 11, 1),
    Sketcher.Constraint("Horizontal", 0, 1, 13, 1),
    Sketcher.Constraint("Horizontal", 1, 1, 14, 1),
    Sketcher.Constraint("Horizontal", 8, 1, 18, 1),
    Sketcher.Constraint("Horizontal", 10, 1, 19, 1),
    Sketcher.Constraint("Horizontal", 7, 1, 20, 1),
    Sketcher.Constraint("Vertical", 3, 3, 4, 3),
    Sketcher.Constraint("Vertical", 10, 3, 2, 1),
    Sketcher.Constraint("Vertical", 2, 1, 4, 1),
    Sketcher.Constraint("Vertical", 4, 1, 5, 1),
    Sketcher.Constraint("Vertical", 0, 1, 7, 1),
    Sketcher.Constraint("Vertical", 3, 1, 8, 1),
    Sketcher.Constraint("Vertical", 5, 1, 9, 1),
    Sketcher.Constraint("Vertical", 21, 3, 12, 1),
    Sketcher.Constraint("Vertical", 15, 1, 16, 1),
    Sketcher.Constraint("Vertical", 16, 1, 21, 1),
    Sketcher.Constraint("Radius", 0, Q("2.5 mm")),
    Sketcher.Constraint("DistanceX", -1, 1, 1, 1, Q("8 mm")),
    Sketcher.Constraint("DistanceY", -1, 1, 2, 1, Q("3 mm")),
    Sketcher.Constraint("DistanceX", -1, 1, 0, 1, Q("7.267767 mm")),
    Sketcher.Constraint("DistanceX", -1, 1, 3, 1, Q("3.732233 mm")),
])
pocket6 = body.newObject("PartDesign::Pocket", "Pocket005")
pocket6.Profile = sketch7
pocket6.Length = 1.5
pocket6.Reversed = True
doc.recompute()

fillet = body.newObject("PartDesign::Fillet", "Fillet")
fillet.Base = (pocket6, edges_at(pocket6, [
    (0, 10, 0),
    (-10, 10, 10),
    (-10, 0, 0),
    (0, 10, 20),
    (-10, 0, 20),
    (10, 10, 10),
    (10, 0, 20),
    (10, -10, 10),
    (10, 0, 0),
    (0, -10, 0),
    (0, -10, 20),
    (-10, -10, 10),
]))
fillet.Radius = 1.5

doc.recompute()
